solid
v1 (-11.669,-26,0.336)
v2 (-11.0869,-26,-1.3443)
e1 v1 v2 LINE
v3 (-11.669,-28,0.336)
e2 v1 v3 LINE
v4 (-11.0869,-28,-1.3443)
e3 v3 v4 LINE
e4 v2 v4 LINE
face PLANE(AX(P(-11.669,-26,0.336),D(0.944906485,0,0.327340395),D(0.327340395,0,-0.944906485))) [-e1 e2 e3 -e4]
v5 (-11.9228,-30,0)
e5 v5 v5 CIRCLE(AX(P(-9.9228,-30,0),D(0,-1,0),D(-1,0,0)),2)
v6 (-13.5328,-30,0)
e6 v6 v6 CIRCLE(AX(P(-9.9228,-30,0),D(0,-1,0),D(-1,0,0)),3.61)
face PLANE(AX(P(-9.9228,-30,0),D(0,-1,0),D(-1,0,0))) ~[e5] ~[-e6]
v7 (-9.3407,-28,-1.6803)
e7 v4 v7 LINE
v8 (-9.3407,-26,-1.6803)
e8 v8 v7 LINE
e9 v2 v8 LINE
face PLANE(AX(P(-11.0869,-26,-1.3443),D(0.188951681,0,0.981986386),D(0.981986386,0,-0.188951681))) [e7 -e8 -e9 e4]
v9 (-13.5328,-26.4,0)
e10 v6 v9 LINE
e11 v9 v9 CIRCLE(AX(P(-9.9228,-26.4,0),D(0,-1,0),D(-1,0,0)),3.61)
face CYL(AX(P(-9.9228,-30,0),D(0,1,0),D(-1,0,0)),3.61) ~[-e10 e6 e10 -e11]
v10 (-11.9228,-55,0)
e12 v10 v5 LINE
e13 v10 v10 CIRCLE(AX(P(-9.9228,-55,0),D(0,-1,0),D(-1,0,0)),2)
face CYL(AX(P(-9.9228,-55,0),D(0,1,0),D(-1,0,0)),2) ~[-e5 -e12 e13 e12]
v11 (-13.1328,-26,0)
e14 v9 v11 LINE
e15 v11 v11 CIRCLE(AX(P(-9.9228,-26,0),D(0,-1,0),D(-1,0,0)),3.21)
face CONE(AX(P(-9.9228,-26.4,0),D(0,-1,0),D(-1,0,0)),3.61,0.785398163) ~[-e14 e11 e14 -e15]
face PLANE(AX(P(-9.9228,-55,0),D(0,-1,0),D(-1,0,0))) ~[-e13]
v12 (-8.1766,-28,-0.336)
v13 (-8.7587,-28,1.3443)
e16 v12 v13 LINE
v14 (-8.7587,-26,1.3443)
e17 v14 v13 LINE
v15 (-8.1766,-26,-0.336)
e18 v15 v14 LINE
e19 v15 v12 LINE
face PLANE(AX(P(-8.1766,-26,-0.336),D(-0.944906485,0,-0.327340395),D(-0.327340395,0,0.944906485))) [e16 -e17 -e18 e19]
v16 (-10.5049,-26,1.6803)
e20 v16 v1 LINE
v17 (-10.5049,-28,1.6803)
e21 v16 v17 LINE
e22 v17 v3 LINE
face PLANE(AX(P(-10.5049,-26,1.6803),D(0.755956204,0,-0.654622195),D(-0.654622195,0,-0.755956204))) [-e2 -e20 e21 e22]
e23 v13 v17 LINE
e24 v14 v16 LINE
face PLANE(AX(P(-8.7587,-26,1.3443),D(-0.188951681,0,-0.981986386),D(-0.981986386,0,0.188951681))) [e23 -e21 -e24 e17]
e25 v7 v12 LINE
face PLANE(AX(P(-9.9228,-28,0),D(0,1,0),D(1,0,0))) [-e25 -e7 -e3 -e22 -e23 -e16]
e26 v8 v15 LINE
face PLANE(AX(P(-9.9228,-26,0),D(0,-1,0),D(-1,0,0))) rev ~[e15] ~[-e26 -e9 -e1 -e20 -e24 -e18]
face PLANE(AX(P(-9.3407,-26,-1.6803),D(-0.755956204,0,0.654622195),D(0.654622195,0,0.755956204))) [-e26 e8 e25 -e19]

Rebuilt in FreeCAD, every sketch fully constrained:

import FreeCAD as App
import Part
import Sketcher
from FreeCAD import Vector
Q = App.Units.Quantity


def edges_at(feature, points):
    """Names of the edges that pass closest to the given points."""
    edges = feature.Shape.Edges
    near = lambda p: min(range(len(edges)), key=lambda i: edges[i].distToShape(Part.Vertex(*p))[0])
    return sorted({f"Edge{near(p) + 1}" for p in points})


def add_polygon(sketch, points):
    """Adds a closed chain of lines whose ends are joined by coincident constraints."""
    first, n = sketch.GeometryCount, len(points)
    for a, b in zip(points, points[1:] + points[:1]):
        sketch.addGeometry(Part.LineSegment(App.Vector(*a, 0), App.Vector(*b, 0)), False)
    for i in range(n):
        sketch.addConstraint(Sketcher.Constraint("Coincident", first + i, 2, first + (i + 1) % n, 1))

doc = App.newDocument("Part")
body = doc.addObject("PartDesign::Body", "Body")

sketch1 = body.newObject("Sketcher::SketchObject", "Sketch")
sketch1.AttachmentSupport = (doc.getObject("XY_Plane"), [""])
sketch1.MapMode = "FlatFace"
add_polygon(sketch1, [(-9.9, -55), (-9.9, -26), (-13.5, -26), (-13.5, -30), (-11.9, -30), (-11.9, -55)])
sketch1.addGeometry(Part.LineSegment(Vector(-9.9, -26, 0), Vector(-9.9, -55, 0)), True)
sketch1.addConstraint(Sketcher.Constraint("Vertical", 0))
sketch1.addConstraint(Sketcher.Constraint("Horizontal", 1))
sketch1.addConstraint(Sketcher.Constraint("Vertical", 2))
sketch1.addConstraint(Sketcher.Constraint("Horizontal", 3))
sketch1.addConstraint(Sketcher.Constraint("Vertical", 4))
sketch1.addConstraint(Sketcher.Constraint("Horizontal", 5))
sketch1.addConstraint(Sketcher.Constraint("Vertical", 6))
sketch1.addConstraint(Sketcher.Constraint("Coincident", 6, 1, 0, 2))
sketch1.addConstraint(Sketcher.Constraint("Horizontal", 4, 2, 6, 2))
sketch1.addConstraint(Sketcher.Constraint("DistanceX", 5, 1, 5, 2, 2.0))
sketch1.addConstraint(Sketcher.Constraint("DistanceY", 2, 2, 2, 1, 4.0))
sketch1.addConstraint(Sketcher.Constraint("DistanceY", 4, 2, 4, 1, 25.0))
sketch1.addConstraint(Sketcher.Constraint("DistanceX", 1, 2, 1, 1, 3.61))
sketch1.addConstraint(Sketcher.Constraint("DistanceY", 0, 2, -1, 1, 26.0))
sketch1.addConstraint(Sketcher.Constraint("DistanceX", 0, 2, -1, 1, 9.9228))
revolution = body.newObject("PartDesign::Revolution", "Revolution")
revolution.Profile = sketch1
revolution.ReferenceAxis = (sketch1, ["Axis0"])
revolution.Angle = 360
doc.recompute()

chamfer = body.newObject("PartDesign::Chamfer", "Chamfer")
chamfer.Base = (revolution, edges_at(revolution, [(-6.313, -26, 0)]))
chamfer.Size = 0.4

sketch2 = body.newObject("Sketcher::SketchObject", "Sketch001")
sketch2.AttachmentSupport = (doc.getObject("XZ_Plane"), [""])
sketch2.MapMode = "FlatFace"
sketch2.AttachmentOffset = App.Placement(Vector(0, 0, 26), App.Rotation())
add_polygon(sketch2, [(-10.5, 1.7), (-8.8, 1.3), (-8.2, -0.3), (-9.3, -1.7), (-11.1, -1.3), (-11.7, 0.3)])
sketch2.addConstraint(Sketcher.Constraint("Parallel", 0, 3))
sketch2.addConstraint(Sketcher.Constraint("Parallel", 1, 4))
sketch2.addConstraint(Sketcher.Constraint("Parallel", 2, 5))
sketch2.addConstraint(Sketcher.Constraint("Equal", 0, 1))
sketch2.addConstraint(Sketcher.Constraint("Equal", 1, 2))
sketch2.addConstraint(Sketcher.Constraint("Equal", 2, 3))
sketch2.addConstraint(Sketcher.Constraint("Angle", 2, Q("-130.891 deg")))
sketch2.addConstraint(Sketcher.Constraint("DistanceY", 1, 2, -1, 1, 0.336))
sketch2.addConstraint(Sketcher.Constraint("DistanceX", 3, 2, -1, 1, 11.087))
sketch2.addConstraint(Sketcher.Constraint("DistanceX", 4, 2, -1, 1, 11.669))
sketch2.addConstraint(Sketcher.Constraint("DistanceY", -1, 1, 4, 2, 0.336))
sketch2.addConstraint(Sketcher.Constraint("DistanceX", 5, 2, -1, 1, 10.505))
pocket1 = body.newObject("PartDesign::Pocket", "Pocket")
pocket1.Profile = sketch2
pocket1.Length = 2
pocket1.Reversed = True

doc.recompute()
